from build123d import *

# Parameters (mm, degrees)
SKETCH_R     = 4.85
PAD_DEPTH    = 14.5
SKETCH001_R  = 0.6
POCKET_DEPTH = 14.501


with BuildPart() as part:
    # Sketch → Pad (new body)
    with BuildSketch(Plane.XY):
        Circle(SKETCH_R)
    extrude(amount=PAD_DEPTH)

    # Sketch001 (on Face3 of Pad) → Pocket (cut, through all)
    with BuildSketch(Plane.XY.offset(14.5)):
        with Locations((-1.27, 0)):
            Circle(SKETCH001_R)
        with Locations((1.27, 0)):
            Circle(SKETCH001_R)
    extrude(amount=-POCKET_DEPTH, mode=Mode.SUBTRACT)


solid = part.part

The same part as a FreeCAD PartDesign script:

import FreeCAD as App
import Part
import Sketcher
Q = App.Units.Quantity

doc = App.newDocument("Part")
params = doc.addObject("Spreadsheet::Sheet", "Params")
for row, (alias, value) in enumerate([
    ("sketch1_diameter", "9.7 mm"),
    ("pad1_length", "14.5 mm"),
    ("sketch2_diameter", "1.2 mm"),
], start=1):
    params.set(f"A{row}", alias)
    params.set(f"B{row}", "=" + value)
    params.setAlias(f"B{row}", alias)

body = doc.addObject("PartDesign::Body", "Body")

# Sketch on XY plane
sketch1 = body.newObject("Sketcher::SketchObject", "Sketch")
sketch1.AttachmentSupport = (doc.getObject("XY_Plane"), [""])
sketch1.MapMode = "FlatFace"
sketch1.addGeometry(Part.Circle(App.Vector(0, 0, 0), App.Vector(0, 0, 1), 4.8), False)
sketch1.addConstraint([
    Sketcher.Constraint("Coincident", 0, 3, -1, 1),
    Sketcher.Constraint("Diameter", 0, Q("9.7 mm")),
])
sketch1.setExpression("Constraints[1]", "Params.sketch1_diameter")
pad1 = body.newObject("PartDesign::Pad", "Pad")
pad1.Profile = sketch1
pad1.setExpression("Length", "Params.pad1_length")

# Sketch on XY plane
sketch2 = body.newObject("Sketcher::SketchObject", "Sketch001")
sketch2.AttachmentSupport = (doc.getObject("XY_Plane"), [""])
sketch2.MapMode = "FlatFace"
sketch2.AttachmentOffset = App.Placement(App.Vector(0, 0, 14.5), App.Rotation())
sketch2.addGeometry([
    Part.Circle(App.Vector(-1.3, 0, 0), App.Vector(0, 0, 1), 0.6),
    Part.Circle(App.Vector(1.3, 0, 0), App.Vector(0, 0, 1), 0.6),
], False)
sketch2.addConstraint([
    Sketcher.Constraint("Equal", 0, 1),
    Sketcher.Constraint("Symmetric", 0, 3, 1, 3, -1, 1),
    Sketcher.Constraint("PointOnObject", 0, 3, -1),
    Sketcher.Constraint("Diameter", 0, Q("1.2 mm")),
    Sketcher.Constraint("DistanceX", 0, 3, -1, 1, Q("1.27 mm")),
])
sketch2.setExpression("Constraints[3]", "Params.sketch2_diameter")
pocket1 = body.newObject("PartDesign::Pocket", "Pocket")
pocket1.Profile = sketch2
pocket1.Type = "ThroughAll"

doc.recompute()
